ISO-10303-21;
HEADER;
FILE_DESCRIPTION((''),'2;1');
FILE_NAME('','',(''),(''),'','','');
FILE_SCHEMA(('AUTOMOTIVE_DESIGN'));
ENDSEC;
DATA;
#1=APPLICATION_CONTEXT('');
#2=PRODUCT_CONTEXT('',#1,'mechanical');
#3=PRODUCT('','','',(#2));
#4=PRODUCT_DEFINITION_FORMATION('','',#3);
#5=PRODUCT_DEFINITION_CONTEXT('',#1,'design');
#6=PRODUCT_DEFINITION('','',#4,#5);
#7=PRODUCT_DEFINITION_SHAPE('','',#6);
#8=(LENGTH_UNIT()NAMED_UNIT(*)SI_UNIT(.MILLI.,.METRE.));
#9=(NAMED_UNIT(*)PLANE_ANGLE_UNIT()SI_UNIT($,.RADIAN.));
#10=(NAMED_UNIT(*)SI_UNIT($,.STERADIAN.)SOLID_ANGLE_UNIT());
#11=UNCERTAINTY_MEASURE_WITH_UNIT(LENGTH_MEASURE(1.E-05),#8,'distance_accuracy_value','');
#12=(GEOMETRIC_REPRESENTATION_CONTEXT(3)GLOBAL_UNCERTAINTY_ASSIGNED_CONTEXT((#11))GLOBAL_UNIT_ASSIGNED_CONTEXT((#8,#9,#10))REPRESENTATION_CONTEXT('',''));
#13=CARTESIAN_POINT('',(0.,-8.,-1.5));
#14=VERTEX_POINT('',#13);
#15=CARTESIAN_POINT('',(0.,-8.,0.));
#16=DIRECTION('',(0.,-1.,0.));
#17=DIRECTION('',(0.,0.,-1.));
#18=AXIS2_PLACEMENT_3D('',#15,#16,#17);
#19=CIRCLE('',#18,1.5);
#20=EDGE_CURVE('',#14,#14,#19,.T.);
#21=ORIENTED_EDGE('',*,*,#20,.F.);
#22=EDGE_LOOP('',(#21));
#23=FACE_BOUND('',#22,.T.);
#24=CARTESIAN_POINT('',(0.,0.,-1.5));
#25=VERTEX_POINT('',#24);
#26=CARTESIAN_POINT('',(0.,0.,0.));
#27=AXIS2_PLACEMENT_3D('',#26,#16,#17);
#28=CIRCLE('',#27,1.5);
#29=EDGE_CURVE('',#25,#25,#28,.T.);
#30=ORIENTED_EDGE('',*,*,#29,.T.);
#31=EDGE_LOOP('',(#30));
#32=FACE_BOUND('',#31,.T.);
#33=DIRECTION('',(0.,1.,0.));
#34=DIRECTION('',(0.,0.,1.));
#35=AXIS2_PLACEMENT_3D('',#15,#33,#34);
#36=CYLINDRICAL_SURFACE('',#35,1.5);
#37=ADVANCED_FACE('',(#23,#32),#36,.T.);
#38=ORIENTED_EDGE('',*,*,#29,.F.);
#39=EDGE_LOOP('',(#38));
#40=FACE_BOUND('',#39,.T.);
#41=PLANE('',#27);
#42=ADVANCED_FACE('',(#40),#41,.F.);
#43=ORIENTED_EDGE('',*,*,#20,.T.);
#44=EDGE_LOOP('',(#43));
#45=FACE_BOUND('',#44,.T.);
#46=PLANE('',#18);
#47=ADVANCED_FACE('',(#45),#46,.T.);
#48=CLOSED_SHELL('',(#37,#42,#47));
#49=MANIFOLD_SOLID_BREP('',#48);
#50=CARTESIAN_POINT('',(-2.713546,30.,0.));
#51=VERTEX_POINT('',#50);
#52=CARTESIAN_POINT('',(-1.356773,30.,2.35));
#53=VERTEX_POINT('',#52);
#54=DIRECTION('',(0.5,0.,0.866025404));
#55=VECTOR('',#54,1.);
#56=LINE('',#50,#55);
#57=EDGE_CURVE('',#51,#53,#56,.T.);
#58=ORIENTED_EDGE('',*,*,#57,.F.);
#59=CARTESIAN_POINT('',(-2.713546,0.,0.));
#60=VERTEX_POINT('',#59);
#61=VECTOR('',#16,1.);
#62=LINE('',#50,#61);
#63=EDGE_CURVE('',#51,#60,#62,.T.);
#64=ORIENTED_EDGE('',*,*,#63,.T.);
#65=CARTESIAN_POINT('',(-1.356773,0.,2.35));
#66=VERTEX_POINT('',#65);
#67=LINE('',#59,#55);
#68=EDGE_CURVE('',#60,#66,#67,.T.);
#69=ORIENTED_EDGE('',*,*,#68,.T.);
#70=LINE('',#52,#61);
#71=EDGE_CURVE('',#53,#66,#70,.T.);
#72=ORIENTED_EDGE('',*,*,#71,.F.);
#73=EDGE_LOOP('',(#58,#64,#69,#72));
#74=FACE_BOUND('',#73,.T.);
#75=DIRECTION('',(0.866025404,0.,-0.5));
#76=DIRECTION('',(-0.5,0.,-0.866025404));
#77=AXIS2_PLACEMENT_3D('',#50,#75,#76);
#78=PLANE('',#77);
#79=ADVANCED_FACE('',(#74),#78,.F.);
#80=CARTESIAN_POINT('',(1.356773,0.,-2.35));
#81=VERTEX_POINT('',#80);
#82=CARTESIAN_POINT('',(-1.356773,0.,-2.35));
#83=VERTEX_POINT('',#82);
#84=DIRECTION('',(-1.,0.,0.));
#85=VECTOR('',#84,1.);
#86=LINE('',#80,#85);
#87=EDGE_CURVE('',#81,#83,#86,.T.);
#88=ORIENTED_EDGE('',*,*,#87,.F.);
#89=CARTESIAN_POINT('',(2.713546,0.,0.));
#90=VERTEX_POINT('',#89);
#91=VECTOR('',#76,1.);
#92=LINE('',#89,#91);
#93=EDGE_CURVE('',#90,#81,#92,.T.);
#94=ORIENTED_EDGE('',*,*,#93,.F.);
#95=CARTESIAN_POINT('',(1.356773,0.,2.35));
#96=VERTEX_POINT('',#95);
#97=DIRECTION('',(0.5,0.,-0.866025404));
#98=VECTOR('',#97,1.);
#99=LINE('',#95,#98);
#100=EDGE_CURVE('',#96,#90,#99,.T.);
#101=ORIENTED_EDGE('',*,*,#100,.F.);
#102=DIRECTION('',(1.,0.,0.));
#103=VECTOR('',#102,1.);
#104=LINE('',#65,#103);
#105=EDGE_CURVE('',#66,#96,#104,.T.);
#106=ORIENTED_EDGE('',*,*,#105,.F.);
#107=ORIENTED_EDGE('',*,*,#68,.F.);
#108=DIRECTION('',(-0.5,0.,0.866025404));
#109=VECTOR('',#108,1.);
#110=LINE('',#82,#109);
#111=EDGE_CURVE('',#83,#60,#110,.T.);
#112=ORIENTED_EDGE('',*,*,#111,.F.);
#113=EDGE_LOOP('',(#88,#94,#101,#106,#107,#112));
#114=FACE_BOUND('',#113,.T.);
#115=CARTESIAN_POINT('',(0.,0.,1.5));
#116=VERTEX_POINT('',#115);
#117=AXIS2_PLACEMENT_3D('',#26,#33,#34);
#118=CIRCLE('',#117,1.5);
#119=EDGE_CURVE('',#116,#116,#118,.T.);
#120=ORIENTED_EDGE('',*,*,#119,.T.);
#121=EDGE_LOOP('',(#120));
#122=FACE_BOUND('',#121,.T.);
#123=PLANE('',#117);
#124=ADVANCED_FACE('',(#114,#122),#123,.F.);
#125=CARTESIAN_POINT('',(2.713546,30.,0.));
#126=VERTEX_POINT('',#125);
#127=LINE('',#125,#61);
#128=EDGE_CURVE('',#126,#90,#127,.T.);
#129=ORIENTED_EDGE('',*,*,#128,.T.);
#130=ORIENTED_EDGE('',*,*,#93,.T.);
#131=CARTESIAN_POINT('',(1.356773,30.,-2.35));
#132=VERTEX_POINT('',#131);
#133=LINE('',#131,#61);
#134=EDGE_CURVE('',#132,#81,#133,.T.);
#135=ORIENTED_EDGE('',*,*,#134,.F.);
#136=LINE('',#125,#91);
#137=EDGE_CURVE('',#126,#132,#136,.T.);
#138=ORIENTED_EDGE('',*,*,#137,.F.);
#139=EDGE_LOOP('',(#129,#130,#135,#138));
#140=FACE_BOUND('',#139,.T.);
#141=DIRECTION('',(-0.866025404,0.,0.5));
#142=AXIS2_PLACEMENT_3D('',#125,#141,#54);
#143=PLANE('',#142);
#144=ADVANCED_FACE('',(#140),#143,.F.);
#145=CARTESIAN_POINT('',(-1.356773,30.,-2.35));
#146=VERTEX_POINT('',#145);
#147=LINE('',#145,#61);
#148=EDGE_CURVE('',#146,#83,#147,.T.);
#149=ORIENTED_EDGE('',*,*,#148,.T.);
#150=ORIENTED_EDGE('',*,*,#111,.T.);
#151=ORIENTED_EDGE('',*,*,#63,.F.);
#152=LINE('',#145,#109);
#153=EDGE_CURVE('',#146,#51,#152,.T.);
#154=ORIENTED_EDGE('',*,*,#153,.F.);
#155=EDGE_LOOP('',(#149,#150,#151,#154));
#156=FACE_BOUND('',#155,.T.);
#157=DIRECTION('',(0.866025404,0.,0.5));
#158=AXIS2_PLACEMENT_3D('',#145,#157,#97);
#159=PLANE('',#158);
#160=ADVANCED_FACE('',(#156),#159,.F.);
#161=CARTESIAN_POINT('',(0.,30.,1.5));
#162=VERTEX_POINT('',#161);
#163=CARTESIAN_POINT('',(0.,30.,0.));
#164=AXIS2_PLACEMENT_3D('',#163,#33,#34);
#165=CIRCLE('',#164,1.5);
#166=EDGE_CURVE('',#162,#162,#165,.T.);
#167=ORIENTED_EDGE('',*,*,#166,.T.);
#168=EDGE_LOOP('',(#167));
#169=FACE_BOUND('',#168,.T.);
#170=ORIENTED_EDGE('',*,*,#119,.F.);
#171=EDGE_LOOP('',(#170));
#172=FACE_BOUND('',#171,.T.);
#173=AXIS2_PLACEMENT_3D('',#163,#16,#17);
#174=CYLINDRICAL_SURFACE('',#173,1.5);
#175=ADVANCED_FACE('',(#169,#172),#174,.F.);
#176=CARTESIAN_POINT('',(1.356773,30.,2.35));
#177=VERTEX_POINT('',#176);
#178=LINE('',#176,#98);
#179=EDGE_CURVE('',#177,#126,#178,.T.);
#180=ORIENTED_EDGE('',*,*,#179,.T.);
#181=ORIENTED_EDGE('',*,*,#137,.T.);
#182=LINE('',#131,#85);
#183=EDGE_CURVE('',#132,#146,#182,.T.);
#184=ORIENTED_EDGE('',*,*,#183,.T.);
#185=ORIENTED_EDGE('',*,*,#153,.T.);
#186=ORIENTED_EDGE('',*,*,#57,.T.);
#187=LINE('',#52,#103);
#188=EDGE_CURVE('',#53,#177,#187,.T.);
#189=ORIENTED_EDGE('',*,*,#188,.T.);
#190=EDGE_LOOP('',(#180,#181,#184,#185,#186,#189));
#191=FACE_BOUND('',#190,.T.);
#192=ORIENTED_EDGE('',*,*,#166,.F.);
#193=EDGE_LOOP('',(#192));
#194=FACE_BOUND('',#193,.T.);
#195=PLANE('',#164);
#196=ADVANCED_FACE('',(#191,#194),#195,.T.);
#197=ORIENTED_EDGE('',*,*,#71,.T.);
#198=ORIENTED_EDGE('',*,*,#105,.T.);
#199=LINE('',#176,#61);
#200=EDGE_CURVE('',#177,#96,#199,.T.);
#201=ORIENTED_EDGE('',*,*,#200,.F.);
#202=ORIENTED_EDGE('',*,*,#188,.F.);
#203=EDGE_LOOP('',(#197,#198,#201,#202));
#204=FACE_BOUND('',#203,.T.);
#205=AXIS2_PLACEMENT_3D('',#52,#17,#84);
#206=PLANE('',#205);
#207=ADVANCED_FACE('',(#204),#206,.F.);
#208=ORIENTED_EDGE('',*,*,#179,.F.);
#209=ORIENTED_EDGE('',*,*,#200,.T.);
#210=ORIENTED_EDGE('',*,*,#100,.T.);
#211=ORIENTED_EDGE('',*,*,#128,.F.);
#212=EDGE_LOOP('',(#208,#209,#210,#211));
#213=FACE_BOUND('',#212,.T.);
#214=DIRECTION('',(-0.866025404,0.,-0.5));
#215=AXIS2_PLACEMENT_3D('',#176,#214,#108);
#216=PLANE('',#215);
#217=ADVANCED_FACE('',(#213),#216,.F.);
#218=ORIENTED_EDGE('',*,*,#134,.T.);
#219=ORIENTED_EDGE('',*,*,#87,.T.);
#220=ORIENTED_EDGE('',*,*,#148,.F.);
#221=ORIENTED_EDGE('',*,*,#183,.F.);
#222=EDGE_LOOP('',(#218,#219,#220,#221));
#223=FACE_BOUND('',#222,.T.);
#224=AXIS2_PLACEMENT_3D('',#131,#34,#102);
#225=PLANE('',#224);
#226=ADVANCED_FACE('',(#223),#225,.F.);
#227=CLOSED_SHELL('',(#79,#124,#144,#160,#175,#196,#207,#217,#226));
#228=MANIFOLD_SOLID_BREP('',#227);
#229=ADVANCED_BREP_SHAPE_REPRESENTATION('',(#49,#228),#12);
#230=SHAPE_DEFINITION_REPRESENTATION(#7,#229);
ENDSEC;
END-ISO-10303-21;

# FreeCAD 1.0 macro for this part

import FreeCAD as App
import Part
import Sketcher
Q = App.Units.Quantity

doc = App.newDocument("Part")
body = doc.addObject("PartDesign::Body", "Body")

# Sketch on XZ plane
sketch1 = body.newObject("Sketcher::SketchObject", "Sketch")
sketch1.AttachmentSupport = (doc.getObject("XZ_Plane"), [""])
sketch1.MapMode = "FlatFace"
sketch1.addGeometry([
    Part.LineSegment(App.Vector(2.7, 0, 0), App.Vector(1.4, -2.4, 0)),  # 0
    Part.LineSegment(App.Vector(1.4, -2.4, 0), App.Vector(-1.4, -2.4, 0)),  # 1
    Part.LineSegment(App.Vector(-1.4, -2.4, 0), App.Vector(-2.7, 0, 0)),  # 2
    Part.LineSegment(App.Vector(-2.7, 0, 0), App.Vector(-1.4, 2.4, 0)),  # 3
    Part.LineSegment(App.Vector(-1.4, 2.4, 0), App.Vector(1.4, 2.4, 0)),  # 4
    Part.LineSegment(App.Vector(1.4, 2.4, 0), App.Vector(2.7, 0, 0)),  # 5
    Part.Circle(App.Vector(0, 0, 0), App.Vector(0, 0, 1), 1.5),  # 6
], False)
sketch1.addConstraint([
    Sketcher.Constraint("Coincident", 0, 2, 1, 1),
    Sketcher.Constraint("Coincident", 1, 2, 2, 1),
    Sketcher.Constraint("Coincident", 2, 2, 3, 1),
    Sketcher.Constraint("Coincident", 3, 2, 4, 1),
    Sketcher.Constraint("Coincident", 4, 2, 5, 1),
    Sketcher.Constraint("Coincident", 5, 2, 0, 1),
    Sketcher.Constraint("Horizontal", 1),
    Sketcher.Constraint("Horizontal", 4),
    Sketcher.Constraint("Coincident", 6, 3, -1, 1),
    Sketcher.Constraint("Symmetric", 0, 2, 3, 2, -1, 1),
    Sketcher.Constraint("Symmetric", 2, 2, 5, 2, -1, 1),
    Sketcher.Constraint("PointOnObject", 2, 2, -1),
    Sketcher.Constraint("Parallel", 2, 5),
    Sketcher.Constraint("Vertical", 1, 2, 3, 2),
    Sketcher.Constraint("Diameter", 6, 3.0),
    Sketcher.Constraint("Angle", 0, Q("-120 deg")),
    Sketcher.Constraint("DistanceY", 1, 2, 3, 2, 4.7),
    Sketcher.Constraint("DistanceX", 1, 2, 1, 1, 2.713546),
])
pad1 = body.newObject("PartDesign::Pad", "Pad")
pad1.Profile = sketch1
pad1.Length = 30
pad1.Reversed = True
body2 = doc.addObject("PartDesign::Body", "Body001")

# Sketch on XZ plane
sketch2 = body2.newObject("Sketcher::SketchObject", "Sketch001")
sketch2.AttachmentSupport = (doc.getObject("XZ_Plane001"), [""])
sketch2.MapMode = "FlatFace"
sketch2.addGeometry(Part.Circle(App.Vector(0, 0, 0), App.Vector(0, 0, 1), 1.5), False)
sketch2.addConstraint([
    Sketcher.Constraint("Coincident", 0, 3, -1, 1),
    Sketcher.Constraint("Diameter", 0, 3.0),
])
pad2 = body2.newObject("PartDesign::Pad", "Pad001")
pad2.Profile = sketch2
pad2.Length = 8

doc.recompute()
